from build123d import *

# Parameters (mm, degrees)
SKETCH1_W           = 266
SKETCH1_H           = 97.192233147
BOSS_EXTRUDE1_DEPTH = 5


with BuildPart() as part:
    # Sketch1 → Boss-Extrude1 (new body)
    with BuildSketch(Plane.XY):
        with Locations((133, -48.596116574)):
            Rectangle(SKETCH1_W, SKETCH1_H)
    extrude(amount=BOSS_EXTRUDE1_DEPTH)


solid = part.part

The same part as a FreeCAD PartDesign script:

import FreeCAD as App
import Part
import Sketcher
from FreeCAD import Vector

doc = App.newDocument("Part")
body = doc.addObject("PartDesign::Body", "Body")

# Sketch on XY plane
sketch1 = body.newObject("Sketcher::SketchObject", "Sketch")
sketch1.AttachmentSupport = (doc.getObject("XY_Plane"), [""])
sketch1.MapMode = "FlatFace"
sketch1.addGeometry([
    Part.LineSegment(Vector(0, 0, 0), Vector(0, -97, 0)),
    Part.LineSegment(Vector(0, -97, 0), Vector(266, -97, 0)),
    Part.LineSegment(Vector(266, -97, 0), Vector(266, 0, 0)),
    Part.LineSegment(Vector(266, 0, 0), Vector(0, 0, 0)),
], False)
sketch1.addConstraint([
    Sketcher.Constraint("Coincident", 0, 2, 1, 1),
    Sketcher.Constraint("Coincident", 1, 2, 2, 1),
    Sketcher.Constraint("Coincident", 2, 2, 3, 1),
    Sketcher.Constraint("Coincident", 3, 2, 0, 1),
    Sketcher.Constraint("Vertical", 0),
    Sketcher.Constraint("Horizontal", 1),
    Sketcher.Constraint("Vertical", 2),
    Sketcher.Constraint("Horizontal", 3),
    Sketcher.Constraint("Coincident", 3, 2, -1, 1),
    Sketcher.Constraint("DistanceX", 1, 1, 1, 2, 266.0),
    Sketcher.Constraint("DistanceY", 0, 2, 0, 1, 97.192233),
])
pad1 = body.newObject("PartDesign::Pad", "Pad")
pad1.Profile = sketch1
pad1.Length = 5

doc.recompute()
